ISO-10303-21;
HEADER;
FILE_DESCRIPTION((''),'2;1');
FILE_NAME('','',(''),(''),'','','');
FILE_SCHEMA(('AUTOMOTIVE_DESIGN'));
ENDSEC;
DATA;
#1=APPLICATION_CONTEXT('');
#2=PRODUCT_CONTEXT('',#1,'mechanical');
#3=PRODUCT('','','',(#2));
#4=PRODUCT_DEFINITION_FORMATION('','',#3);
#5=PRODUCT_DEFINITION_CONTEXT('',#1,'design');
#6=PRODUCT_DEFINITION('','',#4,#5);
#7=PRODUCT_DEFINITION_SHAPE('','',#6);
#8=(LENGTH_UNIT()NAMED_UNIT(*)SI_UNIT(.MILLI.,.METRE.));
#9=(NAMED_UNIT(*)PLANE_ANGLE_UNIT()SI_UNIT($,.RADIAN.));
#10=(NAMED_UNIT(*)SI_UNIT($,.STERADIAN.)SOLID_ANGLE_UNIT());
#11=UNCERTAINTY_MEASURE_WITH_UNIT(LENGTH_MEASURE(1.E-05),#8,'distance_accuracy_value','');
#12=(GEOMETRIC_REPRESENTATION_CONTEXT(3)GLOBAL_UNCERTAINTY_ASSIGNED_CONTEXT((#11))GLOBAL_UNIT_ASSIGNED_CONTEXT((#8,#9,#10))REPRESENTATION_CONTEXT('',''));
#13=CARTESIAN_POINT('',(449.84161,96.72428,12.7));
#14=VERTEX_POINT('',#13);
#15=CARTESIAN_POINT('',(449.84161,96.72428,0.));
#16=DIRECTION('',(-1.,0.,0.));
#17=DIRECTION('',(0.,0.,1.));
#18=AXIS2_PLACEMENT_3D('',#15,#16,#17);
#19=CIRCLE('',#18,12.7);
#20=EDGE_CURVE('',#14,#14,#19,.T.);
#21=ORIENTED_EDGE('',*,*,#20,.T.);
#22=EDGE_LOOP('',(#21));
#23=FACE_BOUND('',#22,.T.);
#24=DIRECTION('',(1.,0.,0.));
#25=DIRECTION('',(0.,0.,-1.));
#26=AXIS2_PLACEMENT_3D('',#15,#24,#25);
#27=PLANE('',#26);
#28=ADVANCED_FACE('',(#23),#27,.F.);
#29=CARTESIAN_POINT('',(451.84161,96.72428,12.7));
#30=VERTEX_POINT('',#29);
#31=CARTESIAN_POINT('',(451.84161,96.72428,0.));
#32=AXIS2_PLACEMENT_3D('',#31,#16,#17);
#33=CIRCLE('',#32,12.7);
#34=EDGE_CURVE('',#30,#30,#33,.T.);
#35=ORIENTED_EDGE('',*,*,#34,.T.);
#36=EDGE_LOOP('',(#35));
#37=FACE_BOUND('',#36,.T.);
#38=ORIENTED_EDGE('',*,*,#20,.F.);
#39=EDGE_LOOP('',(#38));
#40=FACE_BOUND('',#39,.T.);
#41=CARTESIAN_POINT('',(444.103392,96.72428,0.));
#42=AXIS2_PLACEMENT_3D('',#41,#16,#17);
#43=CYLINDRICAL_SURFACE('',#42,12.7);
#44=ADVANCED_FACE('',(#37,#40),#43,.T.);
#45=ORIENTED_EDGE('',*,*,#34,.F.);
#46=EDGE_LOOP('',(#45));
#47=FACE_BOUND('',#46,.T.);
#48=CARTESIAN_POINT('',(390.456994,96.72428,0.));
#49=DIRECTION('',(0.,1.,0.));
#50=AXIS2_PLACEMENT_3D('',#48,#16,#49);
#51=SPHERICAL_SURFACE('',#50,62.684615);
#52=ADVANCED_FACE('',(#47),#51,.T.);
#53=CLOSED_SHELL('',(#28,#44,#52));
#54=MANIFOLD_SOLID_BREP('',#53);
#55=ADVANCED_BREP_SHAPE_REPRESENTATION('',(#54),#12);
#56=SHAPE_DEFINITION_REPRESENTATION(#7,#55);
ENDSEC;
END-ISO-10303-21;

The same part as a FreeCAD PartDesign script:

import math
import FreeCAD as App
import Part
import Sketcher

V = App.Vector

doc = App.newDocument("Part")
body = doc.addObject("PartDesign::Body", "Body")

# Sketch on XY plane
sketch1 = doc.addObject("Sketcher::SketchObject", "Sketch")
body.addObject(sketch1)
sketch1.AttachmentSupport = (doc.XY_Plane, [""])
sketch1.MapMode = "FlatFace"
sketch1.addGeometry([
    Part.LineSegment(V(449.84161, 109.42428, 0), V(449.84161, 96.72428, 0)),
    Part.LineSegment(V(449.84161, 96.72428, 0), V(453.14161, 96.72428, 0)),
    Part.ArcOfCircle(Part.Circle(V(390.456994, 96.72428, 0), V(0, 0, 1), 62.684615), math.radians(0), math.radians(11.689132)),
    Part.LineSegment(V(451.84161, 109.42428, 0), V(449.84161, 109.42428, 0)),
], False)
sketch1.addGeometry(Part.LineSegment(V(390.456994, 96.72428, 0), V(453.14161, 96.72428, 0)), True)  # axis
sketch1.addConstraint([
    Sketcher.Constraint("Coincident", 0, 2, 1, 1),
    Sketcher.Constraint("Coincident", 1, 2, 2, 1),
    Sketcher.Constraint("Coincident", 2, 2, 3, 1),
    Sketcher.Constraint("Coincident", 3, 2, 0, 1),
    Sketcher.Constraint("Vertical", 0),
    Sketcher.Constraint("Horizontal", 1),
    Sketcher.Constraint("Horizontal", 3),
    Sketcher.Constraint("Horizontal", 4),
    Sketcher.Constraint("Coincident", 4, 1, 2, 3),
    Sketcher.Constraint("Coincident", 4, 2, 1, 2),
    Sketcher.Constraint("DistanceX", 3, 2, 3, 1, 2.0),
    Sketcher.Constraint("DistanceX", 1, 1, 1, 2, 3.3),
    Sketcher.Constraint("DistanceY", 0, 2, 0, 1, 12.7),
    Sketcher.Constraint("DistanceY", -1, 1, 2, 3, 96.72428),
    Sketcher.Constraint("DistanceX", -1, 1, 0, 2, 449.84161),
])
revolution = doc.addObject("PartDesign::Revolution", "Revolution")
body.addObject(revolution)
revolution.Profile = sketch1
revolution.ReferenceAxis = (sketch1, ["Axis0"])
revolution.Angle = 360

doc.recompute()
